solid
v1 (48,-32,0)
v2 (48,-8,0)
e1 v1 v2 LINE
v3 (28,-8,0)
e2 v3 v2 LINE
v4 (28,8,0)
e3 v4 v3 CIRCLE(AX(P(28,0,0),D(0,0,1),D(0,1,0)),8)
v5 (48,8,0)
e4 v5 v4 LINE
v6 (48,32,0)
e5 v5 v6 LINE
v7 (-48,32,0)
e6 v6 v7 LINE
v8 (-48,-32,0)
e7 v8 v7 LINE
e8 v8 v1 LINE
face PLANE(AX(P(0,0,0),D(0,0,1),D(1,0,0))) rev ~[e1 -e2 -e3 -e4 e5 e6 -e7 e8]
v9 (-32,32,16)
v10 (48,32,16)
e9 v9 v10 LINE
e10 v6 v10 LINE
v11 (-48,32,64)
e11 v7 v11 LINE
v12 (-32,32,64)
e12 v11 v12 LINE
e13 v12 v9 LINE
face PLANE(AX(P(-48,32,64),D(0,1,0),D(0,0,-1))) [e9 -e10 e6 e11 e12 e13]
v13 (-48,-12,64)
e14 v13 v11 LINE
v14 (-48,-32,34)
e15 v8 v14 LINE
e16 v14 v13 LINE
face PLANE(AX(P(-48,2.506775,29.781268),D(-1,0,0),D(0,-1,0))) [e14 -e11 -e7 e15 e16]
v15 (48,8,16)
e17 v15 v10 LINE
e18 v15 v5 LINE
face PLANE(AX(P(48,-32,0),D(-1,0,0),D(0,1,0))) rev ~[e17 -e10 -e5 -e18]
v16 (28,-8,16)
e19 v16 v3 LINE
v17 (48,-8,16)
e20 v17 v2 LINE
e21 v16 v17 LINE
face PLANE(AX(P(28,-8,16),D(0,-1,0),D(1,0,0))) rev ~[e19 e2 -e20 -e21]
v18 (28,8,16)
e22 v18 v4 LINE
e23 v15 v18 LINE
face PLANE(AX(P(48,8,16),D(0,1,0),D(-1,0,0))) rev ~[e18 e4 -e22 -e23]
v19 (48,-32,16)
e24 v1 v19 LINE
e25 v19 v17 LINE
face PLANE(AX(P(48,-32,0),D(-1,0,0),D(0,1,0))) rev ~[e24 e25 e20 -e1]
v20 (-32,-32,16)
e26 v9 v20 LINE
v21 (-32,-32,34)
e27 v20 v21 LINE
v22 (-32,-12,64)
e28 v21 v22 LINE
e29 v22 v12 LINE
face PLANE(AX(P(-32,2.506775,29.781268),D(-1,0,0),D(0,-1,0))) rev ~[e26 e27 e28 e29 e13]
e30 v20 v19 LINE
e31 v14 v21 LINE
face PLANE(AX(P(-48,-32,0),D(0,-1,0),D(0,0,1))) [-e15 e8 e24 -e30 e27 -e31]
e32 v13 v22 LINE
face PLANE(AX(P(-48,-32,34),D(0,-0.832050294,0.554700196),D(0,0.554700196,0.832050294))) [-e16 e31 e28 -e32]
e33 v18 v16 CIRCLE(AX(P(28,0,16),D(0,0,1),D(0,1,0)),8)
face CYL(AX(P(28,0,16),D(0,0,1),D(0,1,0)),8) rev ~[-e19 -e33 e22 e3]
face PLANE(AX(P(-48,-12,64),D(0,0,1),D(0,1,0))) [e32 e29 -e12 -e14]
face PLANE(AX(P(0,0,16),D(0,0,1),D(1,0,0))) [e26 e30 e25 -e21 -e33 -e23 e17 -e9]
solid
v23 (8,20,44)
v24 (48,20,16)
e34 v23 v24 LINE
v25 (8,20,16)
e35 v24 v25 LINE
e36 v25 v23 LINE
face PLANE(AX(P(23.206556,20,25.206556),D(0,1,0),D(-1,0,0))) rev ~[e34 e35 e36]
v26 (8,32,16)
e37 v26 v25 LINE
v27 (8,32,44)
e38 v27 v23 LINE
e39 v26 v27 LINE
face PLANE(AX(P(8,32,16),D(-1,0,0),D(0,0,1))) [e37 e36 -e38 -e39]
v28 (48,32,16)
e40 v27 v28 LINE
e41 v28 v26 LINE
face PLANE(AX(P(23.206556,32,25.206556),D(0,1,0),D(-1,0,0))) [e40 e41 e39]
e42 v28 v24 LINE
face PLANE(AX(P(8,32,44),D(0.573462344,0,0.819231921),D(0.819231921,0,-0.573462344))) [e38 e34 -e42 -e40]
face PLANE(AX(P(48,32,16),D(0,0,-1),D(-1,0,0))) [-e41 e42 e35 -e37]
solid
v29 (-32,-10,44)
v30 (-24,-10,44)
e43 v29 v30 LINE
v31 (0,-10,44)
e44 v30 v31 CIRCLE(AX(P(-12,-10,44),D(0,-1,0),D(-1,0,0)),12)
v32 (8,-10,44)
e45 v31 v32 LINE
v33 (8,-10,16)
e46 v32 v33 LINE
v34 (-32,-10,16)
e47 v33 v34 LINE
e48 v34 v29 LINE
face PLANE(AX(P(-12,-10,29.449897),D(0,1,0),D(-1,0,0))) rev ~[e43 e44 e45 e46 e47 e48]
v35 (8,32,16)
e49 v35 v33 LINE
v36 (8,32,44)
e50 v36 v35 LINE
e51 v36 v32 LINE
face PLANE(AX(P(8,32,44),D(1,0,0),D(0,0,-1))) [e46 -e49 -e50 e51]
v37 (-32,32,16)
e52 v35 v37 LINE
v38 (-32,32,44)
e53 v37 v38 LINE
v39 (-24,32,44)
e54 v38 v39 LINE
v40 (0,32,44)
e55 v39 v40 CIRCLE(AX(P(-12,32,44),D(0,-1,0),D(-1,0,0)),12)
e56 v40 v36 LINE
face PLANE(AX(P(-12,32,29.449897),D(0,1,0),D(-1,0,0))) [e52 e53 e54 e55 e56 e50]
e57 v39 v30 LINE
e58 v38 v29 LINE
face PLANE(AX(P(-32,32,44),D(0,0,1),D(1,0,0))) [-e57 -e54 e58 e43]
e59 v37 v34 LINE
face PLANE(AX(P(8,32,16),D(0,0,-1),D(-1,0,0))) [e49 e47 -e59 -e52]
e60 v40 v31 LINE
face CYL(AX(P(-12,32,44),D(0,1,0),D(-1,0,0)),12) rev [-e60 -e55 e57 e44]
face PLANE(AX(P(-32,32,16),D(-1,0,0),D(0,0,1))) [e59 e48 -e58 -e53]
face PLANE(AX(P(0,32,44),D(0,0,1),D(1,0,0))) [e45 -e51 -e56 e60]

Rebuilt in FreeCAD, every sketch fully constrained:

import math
import FreeCAD as App
import Part
import Sketcher

V = App.Vector

doc = App.newDocument("Part")
params = doc.addObject("Spreadsheet::Sheet", "Params")
for row, (alias, value) in enumerate([
    ("sketch1_width", "96 mm"),
    ("sketch1_height", "64 mm"),
    ("pad1_length", "16 mm"),
    ("sketch2_width", "64 mm"),
    ("sketch2_width2", "44 mm"),
    ("sketch2_height", "34 mm"),
    ("pad2_length", "16 mm"),
    ("sketch3_radius", "8 mm"),
    ("sketch3_width", "20 mm"),
    ("pocket1_length", "25 mm"),
    ("sketch4_radius", "12 mm"),
    ("sketch4_width", "40 mm"),
    ("sketch4_height", "28 mm"),
    ("pad3_length", "42 mm"),
    ("sketch5_width", "40 mm"),
    ("sketch5_height", "28 mm"),
    ("pad4_length", "12 mm"),
], start=1):
    params.set(f"A{row}", alias)
    params.set(f"B{row}", "=" + value)
    params.setAlias(f"B{row}", alias)

body = doc.addObject("PartDesign::Body", "Body")

# Sketch on XY plane
sketch1 = body.newObject("Sketcher::SketchObject", "Sketch")
sketch1.AttachmentSupport = (doc.getObject("XY_Plane"), [""])
sketch1.MapMode = "FlatFace"
sketch1.addGeometry([
    Part.LineSegment(V(-48, 32, 0), V(-48, -32, 0)),
    Part.LineSegment(V(-48, -32, 0), V(48, -32, 0)),
    Part.LineSegment(V(48, -32, 0), V(48, 32, 0)),
    Part.LineSegment(V(48, 32, 0), V(-48, 32, 0)),
], False)
sketch1.addConstraint([
    Sketcher.Constraint("Coincident", 0, 2, 1, 1),
    Sketcher.Constraint("Coincident", 1, 2, 2, 1),
    Sketcher.Constraint("Coincident", 2, 2, 3, 1),
    Sketcher.Constraint("Coincident", 3, 2, 0, 1),
    Sketcher.Constraint("Vertical", 0),
    Sketcher.Constraint("Horizontal", 1),
    Sketcher.Constraint("Vertical", 2),
    Sketcher.Constraint("Horizontal", 3),
    Sketcher.Constraint("Symmetric", 0, 2, 2, 2, -1, 1),
    Sketcher.Constraint("DistanceX", 1, 1, 1, 2, 96.0),
    Sketcher.Constraint("DistanceY", 0, 2, 0, 1, 64.0),
])
sketch1.setExpression("Constraints[9]", "Params.sketch1_width")
sketch1.setExpression("Constraints[10]", "Params.sketch1_height")
pad1 = body.newObject("PartDesign::Pad", "Pad")
pad1.Profile = sketch1
pad1.setExpression("Length", "Params.pad1_length")

# Sketch on YZ plane
sketch2 = body.newObject("Sketcher::SketchObject", "Sketch001")
sketch2.AttachmentSupport = (doc.getObject("YZ_Plane"), [""])
sketch2.MapMode = "FlatFace"
sketch2.AttachmentOffset = App.Placement(V(0, 0, -48), App.Rotation())
sketch2.addGeometry([
    Part.LineSegment(V(32, 64, 0), V(32, 0, 0)),  # 0
    Part.LineSegment(V(32, 0, 0), V(-32, 0, 0)),  # 1
    Part.LineSegment(V(-32, 0, 0), V(-32, 34, 0)),  # 2
    Part.LineSegment(V(-32, 34, 0), V(-12, 64, 0)),  # 3
    Part.LineSegment(V(-12, 64, 0), V(32, 64, 0)),  # 4
], False)
sketch2.addConstraint([
    Sketcher.Constraint("Coincident", 0, 2, 1, 1),
    Sketcher.Constraint("Coincident", 1, 2, 2, 1),
    Sketcher.Constraint("Coincident", 2, 2, 3, 1),
    Sketcher.Constraint("Coincident", 3, 2, 4, 1),
    Sketcher.Constraint("Coincident", 4, 2, 0, 1),
    Sketcher.Constraint("Vertical", 0),
    Sketcher.Constraint("Horizontal", 1),
    Sketcher.Constraint("Vertical", 2),
    Sketcher.Constraint("Horizontal", 4),
    Sketcher.Constraint("Symmetric", 0, 2, 1, 2, -1, 1),
    Sketcher.Constraint("Equal", 1, 0),
    Sketcher.Constraint("DistanceX", 1, 2, 1, 1, 64.0),
    Sketcher.Constraint("DistanceX", 4, 1, 4, 2, 44.0),
    Sketcher.Constraint("DistanceY", 2, 1, 2, 2, 34.0),
])
sketch2.setExpression("Constraints[11]", "Params.sketch2_width")
sketch2.setExpression("Constraints[12]", "Params.sketch2_width2")
sketch2.setExpression("Constraints[13]", "Params.sketch2_height")
pad2 = body.newObject("PartDesign::Pad", "Pad001")
pad2.Profile = sketch2
pad2.setExpression("Length", "Params.pad2_length")

# Sketch on XY plane
sketch3 = body.newObject("Sketcher::SketchObject", "Sketch002")
sketch3.AttachmentSupport = (doc.getObject("XY_Plane"), [""])
sketch3.MapMode = "FlatFace"
sketch3.AttachmentOffset = App.Placement(V(0, 0, 16), App.Rotation())
sketch3.addGeometry([
    Part.LineSegment(V(48, 8, 0), V(28, 8, 0)),
    Part.ArcOfCircle(Part.Circle(V(28, 0, 0), V(0, 0, 1), 8), math.radians(90), math.radians(270)),
    Part.LineSegment(V(28, -8, 0), V(48, -8, 0)),
    Part.LineSegment(V(48, -8, 0), V(48, 8, 0)),
], False)
sketch3.addConstraint([
    Sketcher.Constraint("Tangent", 0, 2, 1, 1),
    Sketcher.Constraint("Tangent", 1, 2, 2, 1),
    Sketcher.Constraint("Coincident", 2, 2, 3, 1),
    Sketcher.Constraint("Coincident", 3, 2, 0, 1),
    Sketcher.Constraint("Horizontal", 0),
    Sketcher.Constraint("Horizontal", 2),
    Sketcher.Constraint("Vertical", 3),
    Sketcher.Constraint("PointOnObject", 1, 3, -1),
    Sketcher.Constraint("Radius", 1, 8.0),
    Sketcher.Constraint("DistanceX", 0, 2, 0, 1, 20.0),
    Sketcher.Constraint("DistanceX", -1, 1, 1, 3, 28.0),
])
sketch3.setExpression("Constraints[8]", "Params.sketch3_radius")
sketch3.setExpression("Constraints[9]", "Params.sketch3_width")
pocket1 = body.newObject("PartDesign::Pocket", "Pocket")
pocket1.Profile = sketch3
pocket1.setExpression("Length", "Params.pocket1_length")
body2 = doc.addObject("PartDesign::Body", "Body001")

# Sketch on XZ plane
sketch4 = body2.newObject("Sketcher::SketchObject", "Sketch003")
sketch4.AttachmentSupport = (doc.getObject("XZ_Plane001"), [""])
sketch4.MapMode = "FlatFace"
sketch4.AttachmentOffset = App.Placement(V(0, 0, -32), App.Rotation())
sketch4.addGeometry([
    Part.LineSegment(V(8, 16, 0), V(-32, 16, 0)),  # 0
    Part.LineSegment(V(-32, 16, 0), V(-32, 44, 0)),  # 1
    Part.LineSegment(V(-32, 44, 0), V(-24, 44, 0)),  # 2
    Part.ArcOfCircle(Part.Circle(V(-12, 44, 0), V(0, 0, 1), 12), math.radians(180), math.radians(360)),  # 3
    Part.LineSegment(V(0, 44, 0), V(8, 44, 0)),  # 4
    Part.LineSegment(V(8, 44, 0), V(8, 16, 0)),  # 5
], False)
sketch4.addConstraint([
    Sketcher.Constraint("Coincident", 0, 2, 1, 1),
    Sketcher.Constraint("Coincident", 1, 2, 2, 1),
    Sketcher.Constraint("Coincident", 2, 2, 3, 1),
    Sketcher.Constraint("Coincident", 3, 2, 4, 1),
    Sketcher.Constraint("Coincident", 4, 2, 5, 1),
    Sketcher.Constraint("Coincident", 5, 2, 0, 1),
    Sketcher.Constraint("Horizontal", 0),
    Sketcher.Constraint("Vertical", 1),
    Sketcher.Constraint("Horizontal", 2),
    Sketcher.Constraint("Horizontal", 4),
    Sketcher.Constraint("Vertical", 5),
    Sketcher.Constraint("PointOnObject", 3, 2, -2),
    Sketcher.Constraint("Horizontal", 3, 3, 1, 2),
    Sketcher.Constraint("Horizontal", 2, 2, 3, 2),
    Sketcher.Constraint("Equal", 2, 4),
    Sketcher.Constraint("Radius", 3, 12.0),
    Sketcher.Constraint("DistanceX", 0, 2, 0, 1, 40.0),
    Sketcher.Constraint("DistanceY", 1, 1, 1, 2, 28.0),
    Sketcher.Constraint("DistanceY", -1, 1, 3, 3, 44.0),
])
sketch4.setExpression("Constraints[15]", "Params.sketch4_radius")
sketch4.setExpression("Constraints[16]", "Params.sketch4_width")
sketch4.setExpression("Constraints[17]", "Params.sketch4_height")
pad3 = body2.newObject("PartDesign::Pad", "Pad002")
pad3.Profile = sketch4
pad3.setExpression("Length", "Params.pad3_length")
body3 = doc.addObject("PartDesign::Body", "Body002")

# Sketch on XZ plane
sketch5 = body3.newObject("Sketcher::SketchObject", "Sketch004")
sketch5.AttachmentSupport = (doc.getObject("XZ_Plane002"), [""])
sketch5.MapMode = "FlatFace"
sketch5.AttachmentOffset = App.Placement(V(0, 0, -32), App.Rotation())
sketch5.addGeometry([
    Part.LineSegment(V(48, 16, 0), V(8, 16, 0)),
    Part.LineSegment(V(8, 16, 0), V(8, 44, 0)),
    Part.LineSegment(V(8, 44, 0), V(48, 16, 0)),
], False)
sketch5.addConstraint([
    Sketcher.Constraint("Coincident", 0, 2, 1, 1),
    Sketcher.Constraint("Coincident", 1, 2, 2, 1),
    Sketcher.Constraint("Coincident", 2, 2, 0, 1),
    Sketcher.Constraint("Horizontal", 0),
    Sketcher.Constraint("Vertical", 1),
    Sketcher.Constraint("DistanceX", 0, 2, 0, 1, 40.0),
    Sketcher.Constraint("DistanceY", 1, 1, 1, 2, 28.0),
    Sketcher.Constraint("DistanceX", -1, 1, 0, 2, 8.0),
    Sketcher.Constraint("DistanceY", -1, 1, 0, 2, 16.0),
])
sketch5.setExpression("Constraints[5]", "Params.sketch5_width")
sketch5.setExpression("Constraints[6]", "Params.sketch5_height")
pad4 = body3.newObject("PartDesign::Pad", "Pad003")
pad4.Profile = sketch5
pad4.setExpression("Length", "Params.pad4_length")

doc.recompute()
